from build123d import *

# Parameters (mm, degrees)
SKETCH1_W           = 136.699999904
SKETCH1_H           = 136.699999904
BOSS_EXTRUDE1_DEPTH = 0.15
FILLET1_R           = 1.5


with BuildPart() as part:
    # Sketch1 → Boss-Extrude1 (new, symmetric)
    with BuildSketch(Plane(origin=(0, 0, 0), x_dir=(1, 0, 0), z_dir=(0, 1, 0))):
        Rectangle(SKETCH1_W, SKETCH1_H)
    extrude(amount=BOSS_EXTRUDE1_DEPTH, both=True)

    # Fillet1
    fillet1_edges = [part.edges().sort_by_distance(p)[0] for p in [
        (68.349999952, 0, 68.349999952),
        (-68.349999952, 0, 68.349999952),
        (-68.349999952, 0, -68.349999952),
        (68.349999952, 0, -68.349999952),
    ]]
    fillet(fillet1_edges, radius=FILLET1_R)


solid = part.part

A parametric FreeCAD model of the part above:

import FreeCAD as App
import Part
import Sketcher
from FreeCAD import Vector


def edges_at(feature, points):
    """Names of the edges that pass closest to the given points."""
    edges = feature.Shape.Edges
    near = lambda p: min(range(len(edges)), key=lambda i: edges[i].distToShape(Part.Vertex(*p))[0])
    return sorted({f"Edge{near(p) + 1}" for p in points})


def add_polygon(sketch, points):
    """Adds a closed chain of lines whose ends are joined by coincident constraints."""
    first, n = sketch.GeometryCount, len(points)
    for a, b in zip(points, points[1:] + points[:1]):
        sketch.addGeometry(Part.LineSegment(App.Vector(*a, 0), App.Vector(*b, 0)), False)
    for i in range(n):
        sketch.addConstraint(Sketcher.Constraint("Coincident", first + i, 2, first + (i + 1) % n, 1))

doc = App.newDocument("Part")
body = doc.addObject("PartDesign::Body", "Body")

# Sketch on XZ plane
sketch1 = body.newObject("Sketcher::SketchObject", "Sketch")
sketch1.AttachmentSupport = (doc.getObject("XZ_Plane"), [""])
sketch1.MapMode = "FlatFace"
add_polygon(sketch1, [(-68.35, -68.35), (-68.35, 68.35), (68.35, 68.35), (68.35, -68.35)])  # lines 0-3
sketch1.addConstraint([
    Sketcher.Constraint("Vertical", 0),
    Sketcher.Constraint("Horizontal", 1),
    Sketcher.Constraint("Vertical", 2),
    Sketcher.Constraint("Horizontal", 3),
    Sketcher.Constraint("Symmetric", 0, 2, 2, 2, -1, 1),
    Sketcher.Constraint("Equal", 3, 0),
    Sketcher.Constraint("DistanceX", 1, 1, 1, 2, 136.7),
])
pad1 = body.newObject("PartDesign::Pad", "Pad")
pad1.Profile = sketch1
pad1.Length = 0.3
pad1.Midplane = True
doc.recompute()

fillet = body.newObject("PartDesign::Fillet", "Fillet")
fillet.Base = (pad1, edges_at(pad1, [
    (68.35, 0, 68.35),
    (-68.35, 0, 68.35),
    (-68.35, 0, -68.35),
    (68.35, 0, -68.35),
]))
fillet.Radius = 1.5

doc.recompute()
